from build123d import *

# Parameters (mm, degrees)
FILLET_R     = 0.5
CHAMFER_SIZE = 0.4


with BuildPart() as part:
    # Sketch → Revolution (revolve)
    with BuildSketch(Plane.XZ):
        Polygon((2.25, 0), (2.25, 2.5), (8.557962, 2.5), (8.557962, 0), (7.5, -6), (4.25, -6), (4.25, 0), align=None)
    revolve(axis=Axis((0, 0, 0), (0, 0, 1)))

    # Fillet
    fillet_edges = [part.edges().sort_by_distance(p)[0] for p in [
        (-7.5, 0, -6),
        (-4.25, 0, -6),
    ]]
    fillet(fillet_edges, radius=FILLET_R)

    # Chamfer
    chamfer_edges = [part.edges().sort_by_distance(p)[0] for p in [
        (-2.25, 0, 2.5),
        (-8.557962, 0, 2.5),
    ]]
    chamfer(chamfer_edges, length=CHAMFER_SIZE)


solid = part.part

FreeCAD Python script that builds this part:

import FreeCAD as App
import Part
import Sketcher
Q = App.Units.Quantity


def edges_at(feature, points):
    """Names of the edges that pass closest to the given points."""
    edges = feature.Shape.Edges
    near = lambda p: min(range(len(edges)), key=lambda i: edges[i].distToShape(Part.Vertex(*p))[0])
    return sorted({f"Edge{near(p) + 1}" for p in points})

doc = App.newDocument("Part")
body = doc.addObject("PartDesign::Body", "Body")

# Sketch on XZ plane
sketch1 = body.newObject("Sketcher::SketchObject", "Sketch")
sketch1.AttachmentSupport = (doc.getObject("XZ_Plane"), [""])
sketch1.MapMode = "FlatFace"
sketch1.addGeometry([
    Part.LineSegment(App.Vector(2.2, 2.5, 0), App.Vector(2.2, 0, 0)),  # 0
    Part.LineSegment(App.Vector(2.2, 0, 0), App.Vector(4.2, 0, 0)),  # 1
    Part.LineSegment(App.Vector(4.2, 0, 0), App.Vector(4.2, -6, 0)),  # 2
    Part.LineSegment(App.Vector(4.2, -6, 0), App.Vector(7.5, -6, 0)),  # 3
    Part.LineSegment(App.Vector(7.5, -6, 0), App.Vector(8.6, 0, 0)),  # 4
    Part.LineSegment(App.Vector(8.6, 0, 0), App.Vector(8.6, 2.5, 0)),  # 5
    Part.LineSegment(App.Vector(8.6, 2.5, 0), App.Vector(2.2, 2.5, 0)),  # 6
], False)
sketch1.addConstraint([
    Sketcher.Constraint("Coincident", 0, 2, 1, 1),
    Sketcher.Constraint("Coincident", 1, 2, 2, 1),
    Sketcher.Constraint("Coincident", 2, 2, 3, 1),
    Sketcher.Constraint("Coincident", 3, 2, 4, 1),
    Sketcher.Constraint("Coincident", 4, 2, 5, 1),
    Sketcher.Constraint("Coincident", 5, 2, 6, 1),
    Sketcher.Constraint("Coincident", 6, 2, 0, 1),
    Sketcher.Constraint("Vertical", 0),
    Sketcher.Constraint("Horizontal", 1),
    Sketcher.Constraint("Vertical", 2),
    Sketcher.Constraint("Horizontal", 3),
    Sketcher.Constraint("Vertical", 5),
    Sketcher.Constraint("Horizontal", 6),
    Sketcher.Constraint("PointOnObject", 0, 2, -1),
    Sketcher.Constraint("PointOnObject", 4, 2, -1),
    Sketcher.Constraint("DistanceX", 1, 1, 1, 2, 2.0),
    Sketcher.Constraint("DistanceY", 2, 2, 2, 1, 6.0),
    Sketcher.Constraint("Angle", 4, Q("79.999999 deg")),
    Sketcher.Constraint("DistanceY", 0, 2, 0, 1, 2.5),
    Sketcher.Constraint("DistanceX", 3, 1, 3, 2, 3.25),
    Sketcher.Constraint("DistanceX", -1, 1, 3, 2, 7.5),
])
revolution = body.newObject("PartDesign::Revolution", "Revolution")
revolution.Profile = sketch1
revolution.ReferenceAxis = (sketch1, ["V_Axis"])
revolution.Angle = 360
doc.recompute()

fillet = body.newObject("PartDesign::Fillet", "Fillet")
fillet.Base = (revolution, edges_at(revolution, [(-7.5, 0, -6), (-4.25, 0, -6)]))
fillet.Radius = 0.5
doc.recompute()

chamfer = body.newObject("PartDesign::Chamfer", "Chamfer")
chamfer.Base = (fillet, edges_at(fillet, [(-2.25, 0, 2.5), (-8.558, 0, 2.5)]))
chamfer.Size = 0.4

doc.recompute()
